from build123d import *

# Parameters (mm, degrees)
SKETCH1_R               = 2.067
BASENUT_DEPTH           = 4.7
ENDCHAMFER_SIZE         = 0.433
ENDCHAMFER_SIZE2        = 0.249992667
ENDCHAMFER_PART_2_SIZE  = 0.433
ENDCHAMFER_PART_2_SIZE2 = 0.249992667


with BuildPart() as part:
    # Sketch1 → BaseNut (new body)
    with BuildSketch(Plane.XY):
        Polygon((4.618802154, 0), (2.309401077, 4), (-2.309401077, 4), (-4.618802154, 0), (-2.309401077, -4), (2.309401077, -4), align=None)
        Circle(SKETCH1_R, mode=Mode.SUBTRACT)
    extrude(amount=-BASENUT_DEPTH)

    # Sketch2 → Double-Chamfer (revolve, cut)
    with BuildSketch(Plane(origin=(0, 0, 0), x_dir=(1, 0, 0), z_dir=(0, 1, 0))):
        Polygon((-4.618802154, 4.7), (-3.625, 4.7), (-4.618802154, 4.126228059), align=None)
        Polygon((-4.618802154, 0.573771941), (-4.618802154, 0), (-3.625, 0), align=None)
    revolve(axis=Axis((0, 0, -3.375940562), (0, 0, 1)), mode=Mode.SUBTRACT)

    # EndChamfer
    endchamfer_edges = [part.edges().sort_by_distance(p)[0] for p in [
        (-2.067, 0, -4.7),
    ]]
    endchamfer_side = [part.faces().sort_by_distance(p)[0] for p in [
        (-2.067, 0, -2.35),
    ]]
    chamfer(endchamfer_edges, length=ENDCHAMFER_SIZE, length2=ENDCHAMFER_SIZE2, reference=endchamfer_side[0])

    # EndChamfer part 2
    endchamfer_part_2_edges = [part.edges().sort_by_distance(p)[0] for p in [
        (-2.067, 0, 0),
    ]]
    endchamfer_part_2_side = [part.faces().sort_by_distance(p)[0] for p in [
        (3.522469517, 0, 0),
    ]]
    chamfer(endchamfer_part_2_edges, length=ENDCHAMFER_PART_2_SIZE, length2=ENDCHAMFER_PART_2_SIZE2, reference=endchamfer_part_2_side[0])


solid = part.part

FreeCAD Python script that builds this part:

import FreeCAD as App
import Part
import Sketcher

V = App.Vector
Q = App.Units.Quantity


def edges_at(feature, points):
    """Names of the edges that pass closest to the given points."""
    edges = feature.Shape.Edges
    near = lambda p: min(range(len(edges)), key=lambda i: edges[i].distToShape(Part.Vertex(*p))[0])
    return sorted({f"Edge{near(p) + 1}" for p in points})


def add_polygon(sketch, points):
    """Adds a closed chain of lines whose ends are joined by coincident constraints."""
    first, n = sketch.GeometryCount, len(points)
    for a, b in zip(points, points[1:] + points[:1]):
        sketch.addGeometry(Part.LineSegment(App.Vector(*a, 0), App.Vector(*b, 0)), False)
    for i in range(n):
        sketch.addConstraint(Sketcher.Constraint("Coincident", first + i, 2, first + (i + 1) % n, 1))

doc = App.newDocument("Part")
params = doc.addObject("Spreadsheet::Sheet", "Params")
for row, (alias, value) in enumerate([
    ("pad1_length", "4.7 mm"),
    ("groove_angle", "360 deg"),
    ("chamfer_size", "0.433 mm"),
    ("chamfer_size2", "0.249993 mm"),
    ("chamfer2_size", "0.433 mm"),
    ("chamfer2_size2", "0.249993 mm"),
], start=1):
    params.set(f"A{row}", alias)
    params.set(f"B{row}", "=" + value)
    params.setAlias(f"B{row}", alias)

body = doc.addObject("PartDesign::Body", "Body")

# Sketch on XY plane
sketch1 = doc.addObject("Sketcher::SketchObject", "Sketch")
body.addObject(sketch1)
sketch1.AttachmentSupport = (doc.XY_Plane, [""])
sketch1.MapMode = "FlatFace"
add_polygon(sketch1, [(4.618802, 0), (2.309401, 4), (-2.309401, 4), (-4.618802, 0), (-2.309401, -4), (2.309401, -4)])  # lines 0-5
sketch1.addGeometry(Part.Circle(V(0, 0, 0), V(0, 0, 1), 2.067), False)  # 6
sketch1.addConstraint([
    Sketcher.Constraint("Horizontal", 1),
    Sketcher.Constraint("Horizontal", 4),
    Sketcher.Constraint("Coincident", 6, 3, -1, 1),
    Sketcher.Constraint("Symmetric", 0, 2, 3, 2, -1, 1),
    Sketcher.Constraint("Symmetric", 2, 2, 5, 2, -1, 1),
    Sketcher.Constraint("PointOnObject", 2, 2, -1),
    Sketcher.Constraint("Parallel", 2, 5),
    Sketcher.Constraint("Vertical", 1, 2, 3, 2),
    Sketcher.Constraint("Angle", 0, Q("120 deg")),
    Sketcher.Constraint("Diameter", 6, Q("4.134 mm")),
    Sketcher.Constraint("DistanceY", -1, 1, 0, 2, Q("4 mm")),
    Sketcher.Constraint("DistanceX", -1, 1, 0, 2, Q("2.309401 mm")),
])
pad1 = doc.addObject("PartDesign::Pad", "Pad")
body.addObject(pad1)
pad1.Profile = sketch1
pad1.setExpression("Length", "Params.pad1_length")
pad1.Reversed = True

# Sketch on XZ plane
sketch2 = doc.addObject("Sketcher::SketchObject", "Sketch001")
body.addObject(sketch2)
sketch2.AttachmentSupport = (doc.XZ_Plane, [""])
sketch2.MapMode = "FlatFace"
add_polygon(sketch2, [(-3.625, -4.7), (-4.618802, -4.7), (-4.618802, -4.126228)])  # lines 0-2
add_polygon(sketch2, [(-4.618802, -0.573772), (-4.618802, 0), (-3.625, 0)])  # lines 3-5
sketch2.addConstraint([
    Sketcher.Constraint("Horizontal", 0),
    Sketcher.Constraint("Vertical", 1),
    Sketcher.Constraint("Vertical", 3),
    Sketcher.Constraint("Horizontal", 4),
    Sketcher.Constraint("PointOnObject", 3, 2, -1),
    Sketcher.Constraint("Vertical", 1, 2, 3, 2),
    Sketcher.Constraint("Vertical", 2, 2, 4, 2),
    Sketcher.Constraint("Equal", 1, 3),
    Sketcher.Constraint("Angle", 2, Q("-30 deg")),
    Sketcher.Constraint("DistanceY", 0, 2, -1, 1, Q("4.7 mm")),
    Sketcher.Constraint("DistanceX", 2, 2, -1, 1, Q("3.625 mm")),
    Sketcher.Constraint("DistanceY", 1, 1, 1, 2, Q("0.573772 mm")),
])
groove = doc.addObject("PartDesign::Groove", "Groove")
body.addObject(groove)
groove.Profile = sketch2
groove.ReferenceAxis = (sketch2, ["V_Axis"])
groove.setExpression("Angle", "Params.groove_angle")
doc.recompute()

chamfer = doc.addObject("PartDesign::Chamfer", "Chamfer")
body.addObject(chamfer)
chamfer.Base = (groove, edges_at(groove, [(-2.067, 0, -4.7)]))
chamfer.ChamferType = "Two distances"
chamfer.setExpression("Size", "Params.chamfer_size")
chamfer.setExpression("Size2", "Params.chamfer_size2")
chamfer.FlipDirection = True
doc.recompute()

chamfer2 = doc.addObject("PartDesign::Chamfer", "Chamfer001")
body.addObject(chamfer2)
chamfer2.Base = (chamfer, edges_at(chamfer, [(-2.067, 0, 0)]))
chamfer2.ChamferType = "Two distances"
chamfer2.setExpression("Size", "Params.chamfer2_size")
chamfer2.setExpression("Size2", "Params.chamfer2_size2")
chamfer2.FlipDirection = True

doc.recompute()
